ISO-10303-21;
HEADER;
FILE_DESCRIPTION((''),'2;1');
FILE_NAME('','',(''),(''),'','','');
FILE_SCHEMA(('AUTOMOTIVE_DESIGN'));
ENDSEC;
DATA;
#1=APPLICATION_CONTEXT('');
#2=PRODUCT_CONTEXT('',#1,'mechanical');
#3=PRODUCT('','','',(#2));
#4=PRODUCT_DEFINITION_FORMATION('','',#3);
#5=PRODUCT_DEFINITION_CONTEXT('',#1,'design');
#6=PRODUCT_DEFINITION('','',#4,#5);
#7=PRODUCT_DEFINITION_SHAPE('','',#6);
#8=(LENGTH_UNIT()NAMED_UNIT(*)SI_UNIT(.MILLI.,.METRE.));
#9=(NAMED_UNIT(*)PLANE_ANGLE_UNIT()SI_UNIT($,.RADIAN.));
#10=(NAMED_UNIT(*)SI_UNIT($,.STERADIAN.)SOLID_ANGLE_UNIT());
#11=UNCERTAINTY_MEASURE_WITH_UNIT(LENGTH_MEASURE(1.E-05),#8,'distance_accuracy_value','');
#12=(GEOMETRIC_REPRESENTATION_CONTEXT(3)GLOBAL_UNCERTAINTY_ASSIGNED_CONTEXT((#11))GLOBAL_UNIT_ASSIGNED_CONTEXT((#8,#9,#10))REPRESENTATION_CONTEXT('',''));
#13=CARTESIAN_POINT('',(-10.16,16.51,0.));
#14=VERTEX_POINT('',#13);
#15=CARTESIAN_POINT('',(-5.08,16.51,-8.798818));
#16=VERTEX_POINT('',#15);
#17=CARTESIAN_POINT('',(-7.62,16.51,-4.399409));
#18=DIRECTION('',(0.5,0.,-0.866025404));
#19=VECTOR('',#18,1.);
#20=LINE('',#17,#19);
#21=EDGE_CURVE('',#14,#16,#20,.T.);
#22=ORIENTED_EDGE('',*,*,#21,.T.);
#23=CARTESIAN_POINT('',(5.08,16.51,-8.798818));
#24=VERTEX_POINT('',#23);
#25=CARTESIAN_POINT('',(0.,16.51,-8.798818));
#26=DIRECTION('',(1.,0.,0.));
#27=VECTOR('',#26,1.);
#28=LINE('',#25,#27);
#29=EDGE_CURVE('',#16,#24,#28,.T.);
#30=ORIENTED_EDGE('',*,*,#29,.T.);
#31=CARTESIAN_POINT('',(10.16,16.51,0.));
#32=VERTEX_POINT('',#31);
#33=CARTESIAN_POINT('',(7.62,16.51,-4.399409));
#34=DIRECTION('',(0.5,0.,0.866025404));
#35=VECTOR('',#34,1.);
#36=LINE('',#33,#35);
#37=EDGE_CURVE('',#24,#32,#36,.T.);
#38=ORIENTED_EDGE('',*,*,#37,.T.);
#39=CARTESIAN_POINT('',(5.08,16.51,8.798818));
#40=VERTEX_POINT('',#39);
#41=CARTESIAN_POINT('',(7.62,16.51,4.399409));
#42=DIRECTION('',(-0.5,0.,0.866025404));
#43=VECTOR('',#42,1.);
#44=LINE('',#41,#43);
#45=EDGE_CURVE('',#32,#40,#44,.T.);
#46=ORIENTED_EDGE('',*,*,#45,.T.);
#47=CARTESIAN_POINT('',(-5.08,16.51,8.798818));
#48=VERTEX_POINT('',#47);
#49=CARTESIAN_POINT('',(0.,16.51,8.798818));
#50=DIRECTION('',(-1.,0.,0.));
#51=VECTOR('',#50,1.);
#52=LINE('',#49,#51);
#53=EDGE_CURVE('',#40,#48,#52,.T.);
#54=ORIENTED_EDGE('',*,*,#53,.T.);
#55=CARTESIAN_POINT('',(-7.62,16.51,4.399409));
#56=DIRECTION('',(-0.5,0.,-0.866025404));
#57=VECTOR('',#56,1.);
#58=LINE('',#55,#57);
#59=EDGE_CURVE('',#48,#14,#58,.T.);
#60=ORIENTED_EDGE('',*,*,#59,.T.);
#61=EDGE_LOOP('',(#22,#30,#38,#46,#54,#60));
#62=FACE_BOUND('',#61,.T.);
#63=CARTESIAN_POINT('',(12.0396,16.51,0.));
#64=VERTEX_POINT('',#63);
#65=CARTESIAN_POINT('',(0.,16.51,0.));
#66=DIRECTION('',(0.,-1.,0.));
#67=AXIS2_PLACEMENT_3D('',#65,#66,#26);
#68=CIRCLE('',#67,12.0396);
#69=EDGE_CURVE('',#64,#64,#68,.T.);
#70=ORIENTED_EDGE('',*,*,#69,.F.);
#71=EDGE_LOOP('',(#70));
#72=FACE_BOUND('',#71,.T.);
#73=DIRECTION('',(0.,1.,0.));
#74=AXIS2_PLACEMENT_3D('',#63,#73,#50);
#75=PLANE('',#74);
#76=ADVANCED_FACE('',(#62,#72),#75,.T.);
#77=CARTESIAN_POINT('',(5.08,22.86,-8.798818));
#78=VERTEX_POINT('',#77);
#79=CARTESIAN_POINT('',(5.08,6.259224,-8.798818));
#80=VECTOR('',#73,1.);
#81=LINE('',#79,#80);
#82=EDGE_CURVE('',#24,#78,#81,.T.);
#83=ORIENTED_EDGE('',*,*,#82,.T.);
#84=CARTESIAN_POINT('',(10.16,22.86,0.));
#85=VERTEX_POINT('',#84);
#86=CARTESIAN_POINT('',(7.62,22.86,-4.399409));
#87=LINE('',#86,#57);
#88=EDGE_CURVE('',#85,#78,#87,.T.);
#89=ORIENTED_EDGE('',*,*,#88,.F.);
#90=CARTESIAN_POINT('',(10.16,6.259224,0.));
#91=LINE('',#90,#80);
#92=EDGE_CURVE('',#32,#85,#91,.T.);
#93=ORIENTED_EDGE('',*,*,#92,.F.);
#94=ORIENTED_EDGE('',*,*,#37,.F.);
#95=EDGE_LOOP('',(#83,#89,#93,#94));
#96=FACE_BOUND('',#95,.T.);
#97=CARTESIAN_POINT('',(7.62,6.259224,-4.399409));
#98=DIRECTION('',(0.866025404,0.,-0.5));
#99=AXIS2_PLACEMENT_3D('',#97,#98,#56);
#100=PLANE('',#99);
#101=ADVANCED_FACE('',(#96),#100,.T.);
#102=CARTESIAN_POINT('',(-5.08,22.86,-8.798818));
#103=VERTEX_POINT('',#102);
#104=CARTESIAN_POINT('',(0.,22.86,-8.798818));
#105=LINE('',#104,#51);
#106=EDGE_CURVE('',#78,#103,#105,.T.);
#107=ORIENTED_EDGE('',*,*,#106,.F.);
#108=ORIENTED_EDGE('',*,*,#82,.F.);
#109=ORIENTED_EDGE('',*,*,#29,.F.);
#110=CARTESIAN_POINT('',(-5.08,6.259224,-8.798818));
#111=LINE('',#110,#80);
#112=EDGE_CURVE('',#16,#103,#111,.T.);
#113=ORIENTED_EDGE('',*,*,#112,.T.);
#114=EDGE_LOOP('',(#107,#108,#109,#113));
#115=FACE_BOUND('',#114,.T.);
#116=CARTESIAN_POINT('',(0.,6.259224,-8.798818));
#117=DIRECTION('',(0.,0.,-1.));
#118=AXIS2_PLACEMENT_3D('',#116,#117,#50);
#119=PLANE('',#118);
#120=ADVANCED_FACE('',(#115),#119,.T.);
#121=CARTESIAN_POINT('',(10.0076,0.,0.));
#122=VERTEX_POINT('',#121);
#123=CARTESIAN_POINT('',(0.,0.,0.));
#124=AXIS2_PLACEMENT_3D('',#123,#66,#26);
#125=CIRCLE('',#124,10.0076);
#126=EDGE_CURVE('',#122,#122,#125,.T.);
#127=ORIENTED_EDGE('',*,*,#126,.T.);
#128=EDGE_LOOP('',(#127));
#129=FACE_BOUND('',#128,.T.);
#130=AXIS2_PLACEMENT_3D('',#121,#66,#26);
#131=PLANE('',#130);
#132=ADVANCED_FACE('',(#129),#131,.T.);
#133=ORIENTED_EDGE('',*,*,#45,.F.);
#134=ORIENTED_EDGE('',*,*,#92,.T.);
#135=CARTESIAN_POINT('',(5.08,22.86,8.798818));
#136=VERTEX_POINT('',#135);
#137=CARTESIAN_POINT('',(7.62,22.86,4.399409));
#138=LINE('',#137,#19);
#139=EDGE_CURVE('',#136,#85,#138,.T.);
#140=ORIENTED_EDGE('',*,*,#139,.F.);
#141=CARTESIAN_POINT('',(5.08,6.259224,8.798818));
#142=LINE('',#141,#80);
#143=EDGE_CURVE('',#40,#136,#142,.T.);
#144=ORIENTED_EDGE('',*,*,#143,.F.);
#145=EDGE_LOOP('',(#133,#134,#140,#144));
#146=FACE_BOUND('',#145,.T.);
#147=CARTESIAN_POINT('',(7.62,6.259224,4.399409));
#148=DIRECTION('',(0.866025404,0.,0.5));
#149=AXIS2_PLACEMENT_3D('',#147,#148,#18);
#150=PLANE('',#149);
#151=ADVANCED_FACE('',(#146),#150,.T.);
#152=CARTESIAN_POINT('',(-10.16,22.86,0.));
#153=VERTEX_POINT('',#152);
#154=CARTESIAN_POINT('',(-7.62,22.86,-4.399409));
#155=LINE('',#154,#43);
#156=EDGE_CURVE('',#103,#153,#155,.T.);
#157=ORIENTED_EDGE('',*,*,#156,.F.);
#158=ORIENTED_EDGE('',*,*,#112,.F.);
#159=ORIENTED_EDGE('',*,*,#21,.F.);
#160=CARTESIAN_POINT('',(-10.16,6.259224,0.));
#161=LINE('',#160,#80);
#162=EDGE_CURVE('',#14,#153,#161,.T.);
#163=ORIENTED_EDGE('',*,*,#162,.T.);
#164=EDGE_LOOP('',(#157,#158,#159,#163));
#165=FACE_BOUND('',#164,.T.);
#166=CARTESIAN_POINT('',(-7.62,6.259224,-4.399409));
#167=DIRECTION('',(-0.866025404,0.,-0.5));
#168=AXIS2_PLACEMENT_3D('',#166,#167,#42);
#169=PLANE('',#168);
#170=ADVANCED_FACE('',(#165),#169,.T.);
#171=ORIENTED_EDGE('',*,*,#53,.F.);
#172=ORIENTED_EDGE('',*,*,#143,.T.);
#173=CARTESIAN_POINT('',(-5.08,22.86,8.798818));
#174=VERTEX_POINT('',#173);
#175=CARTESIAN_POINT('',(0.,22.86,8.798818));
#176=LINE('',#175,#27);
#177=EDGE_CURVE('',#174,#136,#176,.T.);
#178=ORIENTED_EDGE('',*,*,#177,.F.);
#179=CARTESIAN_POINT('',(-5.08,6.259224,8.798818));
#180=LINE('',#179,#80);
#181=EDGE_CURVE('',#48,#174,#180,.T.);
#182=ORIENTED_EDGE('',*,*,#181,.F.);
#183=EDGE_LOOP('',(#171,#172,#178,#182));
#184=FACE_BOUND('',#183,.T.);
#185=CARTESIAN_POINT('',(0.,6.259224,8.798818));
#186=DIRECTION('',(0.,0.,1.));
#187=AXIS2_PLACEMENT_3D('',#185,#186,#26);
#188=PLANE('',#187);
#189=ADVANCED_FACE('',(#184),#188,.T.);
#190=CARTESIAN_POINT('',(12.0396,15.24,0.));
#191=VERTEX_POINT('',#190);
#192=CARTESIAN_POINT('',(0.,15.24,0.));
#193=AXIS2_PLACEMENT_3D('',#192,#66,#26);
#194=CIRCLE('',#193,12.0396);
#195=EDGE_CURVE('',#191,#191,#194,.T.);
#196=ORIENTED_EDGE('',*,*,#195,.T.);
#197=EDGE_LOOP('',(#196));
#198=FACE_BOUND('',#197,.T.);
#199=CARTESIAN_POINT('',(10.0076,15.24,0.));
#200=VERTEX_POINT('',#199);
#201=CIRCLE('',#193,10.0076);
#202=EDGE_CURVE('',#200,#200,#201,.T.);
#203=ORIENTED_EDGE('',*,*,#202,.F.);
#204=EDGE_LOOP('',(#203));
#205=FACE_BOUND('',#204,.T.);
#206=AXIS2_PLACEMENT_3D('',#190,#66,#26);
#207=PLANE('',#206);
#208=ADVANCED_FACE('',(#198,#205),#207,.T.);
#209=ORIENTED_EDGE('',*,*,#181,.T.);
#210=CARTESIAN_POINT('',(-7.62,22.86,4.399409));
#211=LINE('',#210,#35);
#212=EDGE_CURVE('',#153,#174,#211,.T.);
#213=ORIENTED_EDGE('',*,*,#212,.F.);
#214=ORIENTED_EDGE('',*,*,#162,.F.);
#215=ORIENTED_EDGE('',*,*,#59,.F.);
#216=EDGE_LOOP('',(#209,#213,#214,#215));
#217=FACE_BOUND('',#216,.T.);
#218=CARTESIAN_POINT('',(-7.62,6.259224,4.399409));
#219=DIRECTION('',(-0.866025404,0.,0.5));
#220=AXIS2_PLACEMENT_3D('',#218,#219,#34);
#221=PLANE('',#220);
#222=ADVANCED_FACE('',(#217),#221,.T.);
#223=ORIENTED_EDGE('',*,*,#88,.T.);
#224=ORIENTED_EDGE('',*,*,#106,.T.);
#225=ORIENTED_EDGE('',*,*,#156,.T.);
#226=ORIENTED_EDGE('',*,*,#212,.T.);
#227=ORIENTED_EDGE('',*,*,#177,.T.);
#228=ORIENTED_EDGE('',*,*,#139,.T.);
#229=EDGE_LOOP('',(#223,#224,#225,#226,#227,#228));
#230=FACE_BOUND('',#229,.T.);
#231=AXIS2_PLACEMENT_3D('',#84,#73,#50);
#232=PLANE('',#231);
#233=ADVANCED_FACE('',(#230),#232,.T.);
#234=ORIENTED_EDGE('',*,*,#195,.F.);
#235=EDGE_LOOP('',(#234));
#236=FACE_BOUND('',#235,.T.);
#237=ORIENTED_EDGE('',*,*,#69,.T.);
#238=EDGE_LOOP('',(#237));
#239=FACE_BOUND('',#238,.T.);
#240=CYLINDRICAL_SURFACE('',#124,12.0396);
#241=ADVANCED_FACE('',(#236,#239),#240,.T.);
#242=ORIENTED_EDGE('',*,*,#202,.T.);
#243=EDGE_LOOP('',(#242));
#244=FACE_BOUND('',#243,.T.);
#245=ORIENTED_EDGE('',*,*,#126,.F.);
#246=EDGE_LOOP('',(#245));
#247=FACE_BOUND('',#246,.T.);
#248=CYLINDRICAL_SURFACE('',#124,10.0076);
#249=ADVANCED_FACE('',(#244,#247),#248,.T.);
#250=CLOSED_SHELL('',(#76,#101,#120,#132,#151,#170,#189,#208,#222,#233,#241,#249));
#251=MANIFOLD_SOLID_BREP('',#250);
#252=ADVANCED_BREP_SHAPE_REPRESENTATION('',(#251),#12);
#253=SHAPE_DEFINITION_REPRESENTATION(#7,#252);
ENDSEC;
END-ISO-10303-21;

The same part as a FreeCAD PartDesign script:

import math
import FreeCAD as App
import Part
import Sketcher

V = App.Vector
Q = App.Units.Quantity


def add_polygon(sketch, points):
    """Adds a closed chain of lines whose ends are joined by coincident constraints."""
    first, n = sketch.GeometryCount, len(points)
    for a, b in zip(points, points[1:] + points[:1]):
        sketch.addGeometry(Part.LineSegment(App.Vector(*a, 0), App.Vector(*b, 0)), False)
    for i in range(n):
        sketch.addConstraint(Sketcher.Constraint("Coincident", first + i, 2, first + (i + 1) % n, 1))

doc = App.newDocument("Part")
body = doc.addObject("PartDesign::Body", "Body")

sketch1 = body.newObject("Sketcher::SketchObject", "Sketch")
sketch1.AttachmentSupport = (doc.getObject("XY_Plane"), [""])
sketch1.MapMode = "FlatFace"
add_polygon(sketch1, [(0, 22.86), (0, 0), (10.0076, 0), (10.0076, 15.24), (12.0396, 15.24), (12.0396, 16.51), (10.16, 16.51), (10.16, 22.86)])
sketch1.addConstraint([
    Sketcher.Constraint("Vertical", 0),
    Sketcher.Constraint("Horizontal", 1),
    Sketcher.Constraint("Vertical", 2),
    Sketcher.Constraint("Horizontal", 3),
    Sketcher.Constraint("Vertical", 4),
    Sketcher.Constraint("Horizontal", 5),
    Sketcher.Constraint("Vertical", 6),
    Sketcher.Constraint("Horizontal", 7),
    Sketcher.Constraint("Coincident", 0, 2, -1, 1),
    Sketcher.Constraint("DistanceX", 7, 2, 7, 1, Q("0.4 in")),
    Sketcher.Constraint("DistanceY", 0, 2, 0, 1, Q("0.9 in")),
    Sketcher.Constraint("DistanceY", 2, 1, 2, 2, Q("0.6 in")),
    Sketcher.Constraint("DistanceX", 3, 1, 3, 2, Q("0.08 in")),
    Sketcher.Constraint("DistanceY", 4, 1, 4, 2, Q("0.05 in")),
    Sketcher.Constraint("DistanceX", 1, 1, 1, 2, Q("0.394 in")),
])
revolution = body.newObject("PartDesign::Revolution", "Revolution")
revolution.Profile = sketch1
revolution.ReferenceAxis = (sketch1, ["V_Axis"])
revolution.Angle = 360

sketch2 = body.newObject("Sketcher::SketchObject", "Sketch001")
sketch2.AttachmentSupport = (doc.getObject("XZ_Plane"), [""])
sketch2.MapMode = "FlatFace"
sketch2.AttachmentOffset = App.Placement(V(0, 0, -0.65 * 25.4), App.Rotation())
sketch2.addGeometry([
    Part.ArcOfCircle(Part.Circle(V(0, 0, 0), V(0, 0, 1), 10.16), math.radians(-120), math.radians(-60)),
    Part.LineSegment(V(-5.08, -8.798818, 0), V(5.08, -8.798818, 0)),
    Part.LineSegment(V(-10.16, 0, 0), V(-5.08, -8.798818, 0)),
    Part.ArcOfCircle(Part.Circle(V(0, 0, 0), V(0, 0, 1), 10.16), math.radians(-180), math.radians(-120)),
    Part.LineSegment(V(-5.08, 8.798818, 0), V(-10.16, 0, 0)),
    Part.ArcOfCircle(Part.Circle(V(0, 0, 0), V(0, 0, 1), 10.16), math.radians(120), math.radians(180)),
    Part.ArcOfCircle(Part.Circle(V(0, 0, 0), V(0, 0, 1), 10.16), math.radians(-60), math.radians(0)),
    Part.LineSegment(V(5.08, -8.798818, 0), V(10.16, 0, 0)),
    Part.LineSegment(V(5.08, 8.798818, 0), V(-5.08, 8.798818, 0)),
    Part.ArcOfCircle(Part.Circle(V(0, 0, 0), V(0, 0, 1), 10.16), math.radians(60), math.radians(120)),
    Part.ArcOfCircle(Part.Circle(V(0, 0, 0), V(0, 0, 1), 10.16), math.radians(0), math.radians(60)),
    Part.LineSegment(V(10.16, 0, 0), V(5.08, 8.798818, 0)),
], False)
sketch2.addConstraint([
    Sketcher.Constraint("Coincident", 0, 1, 1, 1),
    Sketcher.Constraint("Coincident", 1, 2, 0, 2),
    Sketcher.Constraint("Coincident", 2, 1, 3, 1),
    Sketcher.Constraint("Coincident", 3, 2, 2, 2),
    Sketcher.Constraint("Coincident", 4, 1, 5, 1),
    Sketcher.Constraint("Coincident", 5, 2, 4, 2),
    Sketcher.Constraint("Coincident", 6, 1, 7, 1),
    Sketcher.Constraint("Coincident", 7, 2, 6, 2),
    Sketcher.Constraint("Coincident", 8, 1, 9, 1),
    Sketcher.Constraint("Coincident", 9, 2, 8, 2),
    Sketcher.Constraint("Coincident", 10, 1, 11, 1),
    Sketcher.Constraint("Coincident", 11, 2, 10, 2),
    Sketcher.Constraint("Horizontal", 1),
    Sketcher.Constraint("Horizontal", 8),
    Sketcher.Constraint("Coincident", 0, 3, -1, 1),
    Sketcher.Constraint("Coincident", 3, 3, -1, 1),
    Sketcher.Constraint("Coincident", 5, 3, -1, 1),
    Sketcher.Constraint("Coincident", 6, 3, -1, 1),
    Sketcher.Constraint("Coincident", 9, 3, -1, 1),
    Sketcher.Constraint("Coincident", 10, 3, -1, 1),
    Sketcher.Constraint("Coincident", 3, 2, 0, 1),
    Sketcher.Constraint("Coincident", 5, 2, 2, 1),
    Sketcher.Constraint("Coincident", 6, 1, 1, 2),
    Sketcher.Constraint("Coincident", 9, 2, 4, 1),
    Sketcher.Constraint("Coincident", 10, 1, 7, 2),
    Sketcher.Constraint("PointOnObject", 2, 1, -1),
    Sketcher.Constraint("PointOnObject", 7, 2, -1),
    Sketcher.Constraint("Parallel", 4, 7),
    Sketcher.Constraint("Parallel", 2, 11),
    Sketcher.Constraint("Radius", 0, Q("0.4 in")),
    Sketcher.Constraint("DistanceX", 1, 1, 1, 2, Q("0.4 in")),
])
pocket1 = body.newObject("PartDesign::Pocket", "Pocket")
pocket1.Profile = sketch2
pocket1.Length = Q("0.25 in")

doc.recompute()
